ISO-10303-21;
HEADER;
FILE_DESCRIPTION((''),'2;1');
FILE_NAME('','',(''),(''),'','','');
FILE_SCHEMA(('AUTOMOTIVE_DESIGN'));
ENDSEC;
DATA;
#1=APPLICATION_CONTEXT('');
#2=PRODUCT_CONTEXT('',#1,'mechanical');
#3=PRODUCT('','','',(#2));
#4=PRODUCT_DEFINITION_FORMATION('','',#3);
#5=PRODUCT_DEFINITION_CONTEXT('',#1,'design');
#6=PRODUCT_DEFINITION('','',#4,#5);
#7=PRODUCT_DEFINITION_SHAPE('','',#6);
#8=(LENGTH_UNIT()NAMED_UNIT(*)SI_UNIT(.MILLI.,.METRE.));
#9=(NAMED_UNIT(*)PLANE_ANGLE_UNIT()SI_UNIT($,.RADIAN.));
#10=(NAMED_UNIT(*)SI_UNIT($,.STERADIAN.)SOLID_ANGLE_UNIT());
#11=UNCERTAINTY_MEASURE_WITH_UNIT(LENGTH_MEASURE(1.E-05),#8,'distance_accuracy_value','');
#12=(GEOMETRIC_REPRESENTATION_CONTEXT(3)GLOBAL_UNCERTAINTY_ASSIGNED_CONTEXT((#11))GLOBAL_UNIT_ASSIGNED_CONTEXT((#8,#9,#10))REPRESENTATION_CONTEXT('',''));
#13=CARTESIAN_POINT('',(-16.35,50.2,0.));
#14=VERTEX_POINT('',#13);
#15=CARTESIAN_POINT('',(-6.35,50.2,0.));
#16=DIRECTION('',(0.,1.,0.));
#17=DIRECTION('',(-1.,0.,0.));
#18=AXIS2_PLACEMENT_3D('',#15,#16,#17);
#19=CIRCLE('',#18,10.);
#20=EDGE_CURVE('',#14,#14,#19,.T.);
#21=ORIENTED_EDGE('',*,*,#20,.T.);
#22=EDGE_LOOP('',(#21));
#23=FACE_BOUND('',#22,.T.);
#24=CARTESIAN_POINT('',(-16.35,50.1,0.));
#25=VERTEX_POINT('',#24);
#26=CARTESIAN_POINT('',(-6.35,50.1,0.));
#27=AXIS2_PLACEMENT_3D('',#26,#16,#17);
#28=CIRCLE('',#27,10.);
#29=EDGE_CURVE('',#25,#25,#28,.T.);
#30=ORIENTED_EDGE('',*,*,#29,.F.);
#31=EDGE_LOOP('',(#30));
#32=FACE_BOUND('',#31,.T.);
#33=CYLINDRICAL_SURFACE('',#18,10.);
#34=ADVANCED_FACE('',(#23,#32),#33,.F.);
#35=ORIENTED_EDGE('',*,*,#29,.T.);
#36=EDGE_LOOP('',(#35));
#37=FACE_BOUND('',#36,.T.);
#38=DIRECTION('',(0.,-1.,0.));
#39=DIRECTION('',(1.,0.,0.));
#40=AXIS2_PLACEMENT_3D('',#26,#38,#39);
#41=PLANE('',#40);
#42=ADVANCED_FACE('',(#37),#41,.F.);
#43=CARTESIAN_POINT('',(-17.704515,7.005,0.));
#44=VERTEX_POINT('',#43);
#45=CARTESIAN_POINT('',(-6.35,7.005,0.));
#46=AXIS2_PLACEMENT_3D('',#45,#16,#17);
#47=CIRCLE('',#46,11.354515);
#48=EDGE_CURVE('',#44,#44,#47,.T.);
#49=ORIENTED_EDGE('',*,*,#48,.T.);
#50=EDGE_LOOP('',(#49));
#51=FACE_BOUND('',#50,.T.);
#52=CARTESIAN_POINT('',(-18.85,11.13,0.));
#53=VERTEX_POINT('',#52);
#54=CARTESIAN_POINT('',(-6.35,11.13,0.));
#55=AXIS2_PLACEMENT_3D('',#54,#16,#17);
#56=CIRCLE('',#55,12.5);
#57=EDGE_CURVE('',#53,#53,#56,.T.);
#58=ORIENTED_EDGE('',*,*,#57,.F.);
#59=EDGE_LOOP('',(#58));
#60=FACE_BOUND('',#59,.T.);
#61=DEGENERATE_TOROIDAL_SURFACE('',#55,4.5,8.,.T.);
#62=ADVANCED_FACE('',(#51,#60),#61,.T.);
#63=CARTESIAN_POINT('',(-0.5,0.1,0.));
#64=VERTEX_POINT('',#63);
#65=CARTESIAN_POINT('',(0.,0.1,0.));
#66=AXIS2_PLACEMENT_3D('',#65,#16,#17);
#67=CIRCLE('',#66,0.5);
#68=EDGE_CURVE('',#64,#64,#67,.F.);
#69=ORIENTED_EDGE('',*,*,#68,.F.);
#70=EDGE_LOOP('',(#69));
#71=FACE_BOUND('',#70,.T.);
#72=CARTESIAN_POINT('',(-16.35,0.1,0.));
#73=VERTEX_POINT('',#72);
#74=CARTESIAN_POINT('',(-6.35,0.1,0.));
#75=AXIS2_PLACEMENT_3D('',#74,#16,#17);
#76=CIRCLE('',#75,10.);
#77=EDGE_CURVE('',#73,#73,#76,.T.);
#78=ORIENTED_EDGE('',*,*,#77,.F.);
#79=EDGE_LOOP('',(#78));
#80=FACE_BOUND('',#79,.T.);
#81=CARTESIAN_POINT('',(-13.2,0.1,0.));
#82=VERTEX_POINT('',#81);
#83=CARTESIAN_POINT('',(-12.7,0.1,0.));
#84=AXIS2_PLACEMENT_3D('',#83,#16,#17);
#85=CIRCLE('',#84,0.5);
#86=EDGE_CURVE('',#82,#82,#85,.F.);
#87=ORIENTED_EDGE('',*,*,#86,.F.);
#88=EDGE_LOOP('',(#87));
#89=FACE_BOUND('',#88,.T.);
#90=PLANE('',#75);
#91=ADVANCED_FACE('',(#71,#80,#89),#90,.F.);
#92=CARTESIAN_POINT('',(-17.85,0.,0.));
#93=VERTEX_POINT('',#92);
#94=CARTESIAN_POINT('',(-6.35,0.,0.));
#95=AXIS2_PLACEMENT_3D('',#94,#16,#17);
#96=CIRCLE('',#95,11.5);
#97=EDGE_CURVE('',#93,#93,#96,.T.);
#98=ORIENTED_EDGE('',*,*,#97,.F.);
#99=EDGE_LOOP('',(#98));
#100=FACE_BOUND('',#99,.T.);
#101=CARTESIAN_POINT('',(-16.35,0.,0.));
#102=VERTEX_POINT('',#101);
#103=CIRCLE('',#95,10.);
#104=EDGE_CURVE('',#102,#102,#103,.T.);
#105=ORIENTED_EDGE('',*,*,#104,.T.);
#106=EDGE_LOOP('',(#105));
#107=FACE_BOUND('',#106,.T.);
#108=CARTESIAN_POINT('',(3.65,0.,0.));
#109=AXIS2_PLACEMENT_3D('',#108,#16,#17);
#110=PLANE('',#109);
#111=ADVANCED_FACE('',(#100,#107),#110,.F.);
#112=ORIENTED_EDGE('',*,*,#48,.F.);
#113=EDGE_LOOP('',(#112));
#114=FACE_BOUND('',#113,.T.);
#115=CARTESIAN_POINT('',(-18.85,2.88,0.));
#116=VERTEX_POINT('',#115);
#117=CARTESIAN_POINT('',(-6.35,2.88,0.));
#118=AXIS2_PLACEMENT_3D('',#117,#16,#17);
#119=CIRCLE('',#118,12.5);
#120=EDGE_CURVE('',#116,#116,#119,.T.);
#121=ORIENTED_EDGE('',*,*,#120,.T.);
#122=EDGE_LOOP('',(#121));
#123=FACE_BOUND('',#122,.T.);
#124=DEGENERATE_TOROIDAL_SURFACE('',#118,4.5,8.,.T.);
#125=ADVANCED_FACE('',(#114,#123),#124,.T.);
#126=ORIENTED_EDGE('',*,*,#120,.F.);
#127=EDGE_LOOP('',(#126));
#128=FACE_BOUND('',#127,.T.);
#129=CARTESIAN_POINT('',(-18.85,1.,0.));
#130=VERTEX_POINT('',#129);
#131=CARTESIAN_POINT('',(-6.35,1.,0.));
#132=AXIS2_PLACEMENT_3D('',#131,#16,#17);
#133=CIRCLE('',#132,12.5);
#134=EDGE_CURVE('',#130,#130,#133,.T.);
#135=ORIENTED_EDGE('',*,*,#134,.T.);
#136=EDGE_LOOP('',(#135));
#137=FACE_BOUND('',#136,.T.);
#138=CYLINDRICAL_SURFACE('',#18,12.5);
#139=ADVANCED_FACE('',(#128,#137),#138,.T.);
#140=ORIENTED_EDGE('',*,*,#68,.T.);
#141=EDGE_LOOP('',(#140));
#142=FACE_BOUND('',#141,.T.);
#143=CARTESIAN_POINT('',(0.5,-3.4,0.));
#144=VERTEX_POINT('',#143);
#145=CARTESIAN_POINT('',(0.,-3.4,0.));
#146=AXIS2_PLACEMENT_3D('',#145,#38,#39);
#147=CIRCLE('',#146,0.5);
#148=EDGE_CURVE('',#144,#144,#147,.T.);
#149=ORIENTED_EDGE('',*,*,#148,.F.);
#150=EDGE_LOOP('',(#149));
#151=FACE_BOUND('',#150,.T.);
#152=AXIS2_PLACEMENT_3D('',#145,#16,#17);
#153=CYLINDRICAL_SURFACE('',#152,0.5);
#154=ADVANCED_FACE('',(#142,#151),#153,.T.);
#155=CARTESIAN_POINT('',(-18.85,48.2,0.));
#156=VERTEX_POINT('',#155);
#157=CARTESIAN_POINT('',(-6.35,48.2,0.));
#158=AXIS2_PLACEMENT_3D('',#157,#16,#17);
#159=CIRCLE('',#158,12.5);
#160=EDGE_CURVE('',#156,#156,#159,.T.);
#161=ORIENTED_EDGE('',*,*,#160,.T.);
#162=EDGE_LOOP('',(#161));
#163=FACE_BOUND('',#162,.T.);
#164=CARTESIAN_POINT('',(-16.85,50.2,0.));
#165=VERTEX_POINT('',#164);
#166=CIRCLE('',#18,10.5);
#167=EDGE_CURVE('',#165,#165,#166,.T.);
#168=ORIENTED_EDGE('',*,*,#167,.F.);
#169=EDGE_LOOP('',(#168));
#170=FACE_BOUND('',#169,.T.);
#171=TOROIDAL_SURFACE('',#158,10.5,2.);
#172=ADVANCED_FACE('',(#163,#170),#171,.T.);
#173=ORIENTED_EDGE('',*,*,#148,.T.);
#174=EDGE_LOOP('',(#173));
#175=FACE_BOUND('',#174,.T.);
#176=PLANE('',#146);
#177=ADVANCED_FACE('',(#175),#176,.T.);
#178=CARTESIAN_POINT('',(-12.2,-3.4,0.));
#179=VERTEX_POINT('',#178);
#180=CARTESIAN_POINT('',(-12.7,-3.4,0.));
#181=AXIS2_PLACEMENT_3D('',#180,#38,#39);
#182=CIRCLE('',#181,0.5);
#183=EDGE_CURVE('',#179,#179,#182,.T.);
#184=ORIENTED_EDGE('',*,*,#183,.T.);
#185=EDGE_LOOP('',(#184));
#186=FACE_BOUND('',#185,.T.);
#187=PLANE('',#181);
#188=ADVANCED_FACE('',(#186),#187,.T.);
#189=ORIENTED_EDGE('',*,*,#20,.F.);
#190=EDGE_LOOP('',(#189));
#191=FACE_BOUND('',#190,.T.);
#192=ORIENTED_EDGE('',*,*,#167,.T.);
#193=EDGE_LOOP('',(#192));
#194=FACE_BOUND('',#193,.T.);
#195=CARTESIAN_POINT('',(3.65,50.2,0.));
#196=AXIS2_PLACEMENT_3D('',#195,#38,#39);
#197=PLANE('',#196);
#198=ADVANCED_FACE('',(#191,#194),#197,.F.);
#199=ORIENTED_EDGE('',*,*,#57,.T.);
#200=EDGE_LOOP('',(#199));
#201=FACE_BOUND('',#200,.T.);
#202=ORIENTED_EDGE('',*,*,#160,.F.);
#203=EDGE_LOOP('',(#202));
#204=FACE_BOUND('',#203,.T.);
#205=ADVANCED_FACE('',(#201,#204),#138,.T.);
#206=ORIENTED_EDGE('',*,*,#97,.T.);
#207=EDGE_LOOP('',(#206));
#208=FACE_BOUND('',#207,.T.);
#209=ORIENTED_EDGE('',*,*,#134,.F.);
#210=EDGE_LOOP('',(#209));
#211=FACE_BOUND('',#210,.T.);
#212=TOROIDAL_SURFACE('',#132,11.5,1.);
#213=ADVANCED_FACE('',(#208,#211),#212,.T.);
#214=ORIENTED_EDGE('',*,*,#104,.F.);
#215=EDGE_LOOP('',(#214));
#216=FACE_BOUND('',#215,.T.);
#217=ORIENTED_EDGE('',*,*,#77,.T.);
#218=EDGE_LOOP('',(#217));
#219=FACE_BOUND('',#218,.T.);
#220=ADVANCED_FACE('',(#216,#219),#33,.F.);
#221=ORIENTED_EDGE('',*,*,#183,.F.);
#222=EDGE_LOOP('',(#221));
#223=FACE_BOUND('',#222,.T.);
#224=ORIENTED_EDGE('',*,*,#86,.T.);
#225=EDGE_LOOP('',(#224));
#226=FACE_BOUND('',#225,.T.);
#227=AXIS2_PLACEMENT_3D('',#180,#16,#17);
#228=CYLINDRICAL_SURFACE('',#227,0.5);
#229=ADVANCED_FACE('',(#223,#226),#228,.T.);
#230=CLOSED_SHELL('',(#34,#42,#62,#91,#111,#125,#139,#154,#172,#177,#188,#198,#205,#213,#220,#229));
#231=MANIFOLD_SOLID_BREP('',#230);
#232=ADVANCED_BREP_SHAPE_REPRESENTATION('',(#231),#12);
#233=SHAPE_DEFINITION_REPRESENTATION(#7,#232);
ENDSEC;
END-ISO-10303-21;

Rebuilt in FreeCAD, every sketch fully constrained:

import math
import FreeCAD as App
import Part
import Sketcher

V = App.Vector

doc = App.newDocument("Part")
body = doc.addObject("PartDesign::Body", "Body")

# Sketch on XY plane
sketch1 = body.newObject("Sketcher::SketchObject", "Sketch")
sketch1.AttachmentSupport = (doc.getObject("XY_Plane"), [""])
sketch1.MapMode = "FlatFace"
sketch1.addGeometry([
    Part.LineSegment(V(-6.35, 0.1, 0), V(3.65, 0.1, 0)),  # 0
    Part.LineSegment(V(3.65, 0.1, 0), V(3.65, 0, 0)),  # 1
    Part.LineSegment(V(3.65, 0, 0), V(5.15, 0, 0)),  # 2
    Part.ArcOfCircle(Part.Circle(V(5.15, 1, 0), V(0, 0, 1), 1), math.radians(-90), math.radians(0)),  # 3
    Part.LineSegment(V(6.15, 1, 0), V(6.15, 2.88, 0)),  # 4
    Part.ArcOfCircle(Part.Circle(V(-1.85, 2.88, 0), V(0, 0, 1), 8), math.radians(0), math.radians(31)),  # 5
    Part.ArcOfCircle(Part.Circle(V(-1.85, 11.13, 0), V(0, 0, 1), 8), math.radians(-31), math.radians(0)),  # 6
    Part.LineSegment(V(6.15, 11.13, 0), V(6.15, 48.2, 0)),  # 7
    Part.ArcOfCircle(Part.Circle(V(4.15, 48.2, 0), V(0, 0, 1), 2), math.radians(0), math.radians(90)),  # 8
    Part.LineSegment(V(4.15, 50.2, 0), V(3.65, 50.2, 0)),  # 9
    Part.LineSegment(V(3.65, 50.2, 0), V(3.65, 50.1, 0)),  # 10
    Part.LineSegment(V(3.65, 50.1, 0), V(-6.35, 50.1, 0)),  # 11
    Part.LineSegment(V(-6.35, 50.1, 0), V(-6.35, 0.1, 0)),  # 12
], False)
sketch1.addGeometry(Part.LineSegment(V(-6.35, 50.2, 0), V(-6.35, 0, 0)), True)  # axis
sketch1.addConstraint([
    Sketcher.Constraint("Coincident", 0, 2, 1, 1),
    Sketcher.Constraint("Coincident", 1, 2, 2, 1),
    Sketcher.Constraint("Tangent", 2, 2, 3, 1),
    Sketcher.Constraint("Tangent", 3, 2, 4, 1),
    Sketcher.Constraint("Tangent", 4, 2, 5, 1),
    Sketcher.Constraint("Coincident", 5, 2, 6, 1),
    Sketcher.Constraint("Tangent", 6, 2, 7, 1),
    Sketcher.Constraint("Tangent", 7, 2, 8, 1),
    Sketcher.Constraint("Tangent", 8, 2, 9, 1),
    Sketcher.Constraint("Coincident", 9, 2, 10, 1),
    Sketcher.Constraint("Coincident", 10, 2, 11, 1),
    Sketcher.Constraint("Coincident", 11, 2, 12, 1),
    Sketcher.Constraint("Coincident", 12, 2, 0, 1),
    Sketcher.Constraint("Horizontal", 0),
    Sketcher.Constraint("Vertical", 1),
    Sketcher.Constraint("Horizontal", 2),
    Sketcher.Constraint("Vertical", 4),
    Sketcher.Constraint("Vertical", 7),
    Sketcher.Constraint("Horizontal", 9),
    Sketcher.Constraint("Vertical", 10),
    Sketcher.Constraint("Horizontal", 11),
    Sketcher.Constraint("Vertical", 12),
    Sketcher.Constraint("Vertical", 13),
    Sketcher.Constraint("Equal", 5, 6),
    Sketcher.Constraint("PointOnObject", 1, 2, -1),
    Sketcher.Constraint("PointOnObject", 13, 2, -1),
    Sketcher.Constraint("Horizontal", 9, 2, 13, 1),
    Sketcher.Constraint("Vertical", 5, 3, 6, 3),
    Sketcher.Constraint("Vertical", 1, 2, 9, 2),
    Sketcher.Constraint("Vertical", 12, 2, 13, 1),
    Sketcher.Constraint("Equal", 1, 10),
    Sketcher.Constraint("Radius", 3, 1.0),
    Sketcher.Constraint("Radius", 5, 8.0),
    Sketcher.Constraint("Radius", 8, 2.0),
    Sketcher.Constraint("DistanceX", 0, 1, 0, 2, 10.0),
    Sketcher.Constraint("DistanceY", 12, 2, 12, 1, 50.0),
    Sketcher.Constraint("DistanceX", 2, 1, 2, 2, 1.5),
    Sketcher.Constraint("DistanceY", 1, 2, 1, 1, 0.1),
    Sketcher.Constraint("DistanceY", 4, 1, 4, 2, 1.88),
    Sketcher.Constraint("DistanceY", 7, 1, 7, 2, 37.07),
    Sketcher.Constraint("DistanceX", -1, 1, 3, 3, 5.15),
])
revolution = body.newObject("PartDesign::Revolution", "Revolution")
revolution.Profile = sketch1
revolution.ReferenceAxis = (sketch1, ["Axis0"])
revolution.Angle = 360

# Sketch on XZ plane
sketch2 = body.newObject("Sketcher::SketchObject", "Sketch001")
sketch2.AttachmentSupport = (doc.getObject("XZ_Plane"), [""])
sketch2.MapMode = "FlatFace"
sketch2.AttachmentOffset = App.Placement(V(0, 0, -0.1), App.Rotation())
sketch2.addGeometry([
    Part.Circle(V(0, 0, 0), V(0, 0, 1), 0.5),
    Part.Circle(V(-12.7, 0, 0), V(0, 0, 1), 0.5),
], False)
sketch2.addConstraint([
    Sketcher.Constraint("Coincident", 0, 3, -1, 1),
    Sketcher.Constraint("Equal", 0, 1),
    Sketcher.Constraint("PointOnObject", 1, 3, -1),
    Sketcher.Constraint("Diameter", 0, 1.0),
    Sketcher.Constraint("DistanceX", 1, 3, -1, 1, 12.7),
])
pad1 = body.newObject("PartDesign::Pad", "Pad")
pad1.Profile = sketch2
pad1.Length = 3.5

doc.recompute()
